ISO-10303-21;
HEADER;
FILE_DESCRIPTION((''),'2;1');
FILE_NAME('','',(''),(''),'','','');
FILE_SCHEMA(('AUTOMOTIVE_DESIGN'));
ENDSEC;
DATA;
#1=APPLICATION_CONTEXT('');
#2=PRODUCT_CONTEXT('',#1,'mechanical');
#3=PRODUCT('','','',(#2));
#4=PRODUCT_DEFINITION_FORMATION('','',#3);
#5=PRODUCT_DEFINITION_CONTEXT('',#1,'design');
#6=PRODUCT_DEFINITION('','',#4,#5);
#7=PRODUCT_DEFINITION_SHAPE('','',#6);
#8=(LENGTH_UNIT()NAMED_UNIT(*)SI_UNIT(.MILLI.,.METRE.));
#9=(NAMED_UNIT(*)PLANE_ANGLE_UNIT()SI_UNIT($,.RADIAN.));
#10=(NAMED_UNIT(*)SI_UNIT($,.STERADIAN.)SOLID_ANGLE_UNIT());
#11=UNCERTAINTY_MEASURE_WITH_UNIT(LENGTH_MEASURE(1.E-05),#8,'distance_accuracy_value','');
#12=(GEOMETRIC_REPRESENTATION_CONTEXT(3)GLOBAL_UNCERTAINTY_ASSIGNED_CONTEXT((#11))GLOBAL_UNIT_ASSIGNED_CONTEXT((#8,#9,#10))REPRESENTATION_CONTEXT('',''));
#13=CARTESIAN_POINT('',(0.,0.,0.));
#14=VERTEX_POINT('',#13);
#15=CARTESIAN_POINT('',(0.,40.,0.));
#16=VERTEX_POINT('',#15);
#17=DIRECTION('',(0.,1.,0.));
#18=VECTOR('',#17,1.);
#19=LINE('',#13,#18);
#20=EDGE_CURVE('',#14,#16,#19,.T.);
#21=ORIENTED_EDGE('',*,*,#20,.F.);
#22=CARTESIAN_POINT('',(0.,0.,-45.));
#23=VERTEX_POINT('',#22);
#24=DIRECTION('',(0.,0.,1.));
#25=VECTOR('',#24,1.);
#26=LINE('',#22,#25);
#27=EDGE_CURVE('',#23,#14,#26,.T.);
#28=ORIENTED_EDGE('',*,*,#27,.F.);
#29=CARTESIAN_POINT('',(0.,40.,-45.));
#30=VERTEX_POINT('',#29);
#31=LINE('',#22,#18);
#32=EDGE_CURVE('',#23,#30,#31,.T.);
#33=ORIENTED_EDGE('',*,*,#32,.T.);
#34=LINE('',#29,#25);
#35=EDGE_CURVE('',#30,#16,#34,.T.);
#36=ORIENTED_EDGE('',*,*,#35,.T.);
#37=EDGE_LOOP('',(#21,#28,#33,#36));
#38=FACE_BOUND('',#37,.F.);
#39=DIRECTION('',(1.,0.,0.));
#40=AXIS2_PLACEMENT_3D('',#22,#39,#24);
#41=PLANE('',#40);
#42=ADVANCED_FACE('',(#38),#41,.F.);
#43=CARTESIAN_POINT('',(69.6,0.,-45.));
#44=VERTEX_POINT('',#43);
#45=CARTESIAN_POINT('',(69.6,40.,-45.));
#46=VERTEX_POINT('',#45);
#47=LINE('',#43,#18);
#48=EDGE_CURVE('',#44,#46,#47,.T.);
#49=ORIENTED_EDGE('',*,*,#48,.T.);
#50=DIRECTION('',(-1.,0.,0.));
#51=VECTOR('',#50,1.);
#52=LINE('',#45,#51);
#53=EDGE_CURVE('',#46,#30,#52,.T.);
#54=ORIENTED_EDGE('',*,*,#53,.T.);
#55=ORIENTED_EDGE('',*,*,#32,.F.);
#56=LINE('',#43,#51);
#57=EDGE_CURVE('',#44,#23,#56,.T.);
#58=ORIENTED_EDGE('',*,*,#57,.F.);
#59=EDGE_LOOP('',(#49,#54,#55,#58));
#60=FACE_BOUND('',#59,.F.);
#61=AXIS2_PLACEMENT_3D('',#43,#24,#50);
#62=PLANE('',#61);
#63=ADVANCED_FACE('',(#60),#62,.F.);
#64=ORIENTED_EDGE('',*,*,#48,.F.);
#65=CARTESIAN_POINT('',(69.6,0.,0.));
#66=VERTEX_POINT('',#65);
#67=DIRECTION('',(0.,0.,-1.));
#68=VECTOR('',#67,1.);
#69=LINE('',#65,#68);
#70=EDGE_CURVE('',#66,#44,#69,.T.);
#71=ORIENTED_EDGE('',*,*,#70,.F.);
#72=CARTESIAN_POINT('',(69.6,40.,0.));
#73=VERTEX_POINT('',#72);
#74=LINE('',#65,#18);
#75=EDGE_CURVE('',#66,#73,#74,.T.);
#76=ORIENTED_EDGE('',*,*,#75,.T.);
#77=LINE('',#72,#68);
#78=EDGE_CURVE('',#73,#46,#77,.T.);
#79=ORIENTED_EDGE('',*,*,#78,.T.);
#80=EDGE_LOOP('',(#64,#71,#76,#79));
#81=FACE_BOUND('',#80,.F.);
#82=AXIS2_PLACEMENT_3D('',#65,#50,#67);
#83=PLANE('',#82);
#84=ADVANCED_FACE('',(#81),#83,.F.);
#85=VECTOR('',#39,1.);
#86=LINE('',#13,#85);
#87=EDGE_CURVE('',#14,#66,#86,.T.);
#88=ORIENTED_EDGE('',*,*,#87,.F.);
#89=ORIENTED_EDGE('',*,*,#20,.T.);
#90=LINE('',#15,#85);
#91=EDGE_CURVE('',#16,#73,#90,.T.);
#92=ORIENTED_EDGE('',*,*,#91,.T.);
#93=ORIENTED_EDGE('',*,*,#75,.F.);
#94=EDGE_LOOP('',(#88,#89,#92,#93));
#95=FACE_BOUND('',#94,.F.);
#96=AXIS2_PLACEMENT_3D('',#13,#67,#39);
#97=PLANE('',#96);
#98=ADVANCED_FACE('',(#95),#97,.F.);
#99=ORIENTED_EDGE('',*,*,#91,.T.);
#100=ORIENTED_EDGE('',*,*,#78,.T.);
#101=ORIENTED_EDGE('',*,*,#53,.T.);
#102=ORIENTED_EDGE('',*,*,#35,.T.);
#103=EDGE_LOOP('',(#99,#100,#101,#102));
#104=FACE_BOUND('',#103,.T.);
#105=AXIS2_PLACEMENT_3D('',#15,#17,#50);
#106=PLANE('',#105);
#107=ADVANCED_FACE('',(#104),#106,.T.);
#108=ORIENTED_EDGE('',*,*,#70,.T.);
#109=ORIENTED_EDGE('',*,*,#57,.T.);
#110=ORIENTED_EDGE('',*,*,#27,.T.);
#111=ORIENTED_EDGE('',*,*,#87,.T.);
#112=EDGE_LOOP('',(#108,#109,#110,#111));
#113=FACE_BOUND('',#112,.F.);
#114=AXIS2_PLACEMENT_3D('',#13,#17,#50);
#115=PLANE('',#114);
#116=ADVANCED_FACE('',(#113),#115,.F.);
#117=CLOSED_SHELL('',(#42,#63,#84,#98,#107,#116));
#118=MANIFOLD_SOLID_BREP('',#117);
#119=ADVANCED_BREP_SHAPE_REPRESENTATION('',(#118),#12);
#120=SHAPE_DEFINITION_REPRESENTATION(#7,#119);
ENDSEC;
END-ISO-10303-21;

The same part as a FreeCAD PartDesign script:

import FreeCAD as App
import Part
import Sketcher

V = App.Vector

doc = App.newDocument("Part")
body = doc.addObject("PartDesign::Body", "Body")

# Sketch on XZ plane
sketch1 = body.newObject("Sketcher::SketchObject", "Sketch")
sketch1.AttachmentSupport = (doc.getObject("XZ_Plane"), [""])
sketch1.MapMode = "FlatFace"
sketch1.addGeometry(Part.LineSegment(V(0, -45, 0), V(0, 0, 0)), False)
sketch1.addGeometry(Part.LineSegment(V(0, 0, 0), V(70, 0, 0)), False)
sketch1.addGeometry(Part.LineSegment(V(70, 0, 0), V(70, -45, 0)), False)
sketch1.addGeometry(Part.LineSegment(V(70, -45, 0), V(0, -45, 0)), False)
sketch1.addConstraint(Sketcher.Constraint("Coincident", 0, 2, 1, 1))
sketch1.addConstraint(Sketcher.Constraint("Coincident", 1, 2, 2, 1))
sketch1.addConstraint(Sketcher.Constraint("Coincident", 2, 2, 3, 1))
sketch1.addConstraint(Sketcher.Constraint("Coincident", 3, 2, 0, 1))
sketch1.addConstraint(Sketcher.Constraint("Vertical", 0))
sketch1.addConstraint(Sketcher.Constraint("Horizontal", 1))
sketch1.addConstraint(Sketcher.Constraint("Vertical", 2))
sketch1.addConstraint(Sketcher.Constraint("Horizontal", 3))
sketch1.addConstraint(Sketcher.Constraint("Coincident", 0, 2, -1, 1))
sketch1.addConstraint(Sketcher.Constraint("DistanceY", 0, 1, 0, 2, 45.0))
sketch1.addConstraint(Sketcher.Constraint("DistanceX", 1, 1, 1, 2, 69.6))
pad1 = body.newObject("PartDesign::Pad", "Pad")
pad1.Profile = sketch1
pad1.Length = 40
pad1.Reversed = True

doc.recompute()
